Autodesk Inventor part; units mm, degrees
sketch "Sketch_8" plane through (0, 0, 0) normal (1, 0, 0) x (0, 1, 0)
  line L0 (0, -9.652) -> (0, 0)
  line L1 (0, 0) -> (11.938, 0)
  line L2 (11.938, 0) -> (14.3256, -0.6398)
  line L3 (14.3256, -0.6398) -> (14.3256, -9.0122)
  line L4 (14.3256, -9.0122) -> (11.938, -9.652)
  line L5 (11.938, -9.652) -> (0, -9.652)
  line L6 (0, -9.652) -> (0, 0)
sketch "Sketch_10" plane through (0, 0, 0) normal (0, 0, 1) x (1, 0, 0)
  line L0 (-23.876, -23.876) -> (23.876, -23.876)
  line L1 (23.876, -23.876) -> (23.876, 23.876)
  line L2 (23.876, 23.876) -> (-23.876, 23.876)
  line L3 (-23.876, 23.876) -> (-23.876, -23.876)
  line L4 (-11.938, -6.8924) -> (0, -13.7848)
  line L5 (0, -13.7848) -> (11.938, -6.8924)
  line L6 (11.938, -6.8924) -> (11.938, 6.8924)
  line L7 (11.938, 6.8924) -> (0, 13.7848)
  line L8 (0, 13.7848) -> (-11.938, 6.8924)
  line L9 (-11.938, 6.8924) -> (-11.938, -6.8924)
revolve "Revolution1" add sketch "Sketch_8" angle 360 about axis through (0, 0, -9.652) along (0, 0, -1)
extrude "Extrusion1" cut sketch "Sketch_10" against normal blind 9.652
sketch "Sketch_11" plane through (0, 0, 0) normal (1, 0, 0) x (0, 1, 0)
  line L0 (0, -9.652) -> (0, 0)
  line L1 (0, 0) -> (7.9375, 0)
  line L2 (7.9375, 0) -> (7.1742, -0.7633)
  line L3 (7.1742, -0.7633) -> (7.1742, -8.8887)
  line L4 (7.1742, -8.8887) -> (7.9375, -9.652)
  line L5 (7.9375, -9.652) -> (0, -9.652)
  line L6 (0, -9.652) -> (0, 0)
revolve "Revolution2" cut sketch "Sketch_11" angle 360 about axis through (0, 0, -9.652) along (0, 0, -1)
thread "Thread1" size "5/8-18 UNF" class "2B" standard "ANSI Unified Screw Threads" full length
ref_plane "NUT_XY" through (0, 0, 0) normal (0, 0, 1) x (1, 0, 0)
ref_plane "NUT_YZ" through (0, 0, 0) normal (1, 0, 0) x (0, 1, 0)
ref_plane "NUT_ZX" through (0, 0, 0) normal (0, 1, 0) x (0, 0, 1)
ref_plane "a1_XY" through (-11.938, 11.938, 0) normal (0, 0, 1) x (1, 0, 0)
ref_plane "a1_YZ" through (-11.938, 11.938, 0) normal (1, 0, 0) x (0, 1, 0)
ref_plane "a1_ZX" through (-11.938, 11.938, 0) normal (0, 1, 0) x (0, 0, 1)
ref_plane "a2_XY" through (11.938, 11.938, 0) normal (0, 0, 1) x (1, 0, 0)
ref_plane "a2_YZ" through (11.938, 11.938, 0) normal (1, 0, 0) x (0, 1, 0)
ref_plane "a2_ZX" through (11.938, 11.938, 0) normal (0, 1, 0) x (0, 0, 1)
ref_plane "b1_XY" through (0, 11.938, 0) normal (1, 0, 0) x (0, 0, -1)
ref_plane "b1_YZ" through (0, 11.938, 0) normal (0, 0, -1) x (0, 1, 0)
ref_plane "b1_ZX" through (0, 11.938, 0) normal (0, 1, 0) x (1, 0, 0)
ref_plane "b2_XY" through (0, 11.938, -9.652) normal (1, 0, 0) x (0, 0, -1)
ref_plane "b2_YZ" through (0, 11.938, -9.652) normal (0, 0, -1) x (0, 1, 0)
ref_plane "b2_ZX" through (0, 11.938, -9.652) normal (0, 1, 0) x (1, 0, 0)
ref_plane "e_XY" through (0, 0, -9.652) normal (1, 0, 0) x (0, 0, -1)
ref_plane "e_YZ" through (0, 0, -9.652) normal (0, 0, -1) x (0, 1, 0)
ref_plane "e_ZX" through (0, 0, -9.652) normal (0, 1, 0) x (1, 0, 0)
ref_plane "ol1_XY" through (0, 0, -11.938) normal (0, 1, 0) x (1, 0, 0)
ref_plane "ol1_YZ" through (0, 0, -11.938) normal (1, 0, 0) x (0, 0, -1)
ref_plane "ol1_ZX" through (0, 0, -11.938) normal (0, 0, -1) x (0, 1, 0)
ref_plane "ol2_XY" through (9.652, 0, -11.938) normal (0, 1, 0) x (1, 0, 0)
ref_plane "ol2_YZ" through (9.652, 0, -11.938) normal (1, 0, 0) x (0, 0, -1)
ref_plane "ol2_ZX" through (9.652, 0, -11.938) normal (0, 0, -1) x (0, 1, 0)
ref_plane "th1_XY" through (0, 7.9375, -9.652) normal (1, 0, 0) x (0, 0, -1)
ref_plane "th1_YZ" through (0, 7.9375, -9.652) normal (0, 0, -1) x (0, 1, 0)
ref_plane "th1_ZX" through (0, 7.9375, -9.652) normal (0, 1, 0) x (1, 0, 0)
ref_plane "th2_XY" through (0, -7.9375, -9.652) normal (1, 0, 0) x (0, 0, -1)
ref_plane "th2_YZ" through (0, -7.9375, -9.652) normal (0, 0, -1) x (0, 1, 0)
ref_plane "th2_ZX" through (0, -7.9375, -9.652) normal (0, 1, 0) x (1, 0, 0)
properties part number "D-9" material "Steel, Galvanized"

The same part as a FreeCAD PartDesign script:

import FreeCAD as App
import Part
import Sketcher

V = App.Vector
Q = App.Units.Quantity

doc = App.newDocument("Part")
params = doc.addObject("Spreadsheet::Sheet", "Params")
for row, (alias, value) in enumerate([
    ("sketch1_width", "0.47 in"),
    ("sketch1_height", "0.38 in"),
    ("revolution_angle", "360 deg"),
    ("sketch2_width", "1.88 in"),
    ("pocket1_length", "0.38 in"),
    ("sketch3_height", "0.38 in"),
    ("sketch3_width", "0.3125 in"),
    ("groove_angle", "360 deg"),
], start=1):
    params.set(f"A{row}", alias)
    params.set(f"B{row}", "=" + value)
    params.setAlias(f"B{row}", alias)

body = doc.addObject("PartDesign::Body", "Body")

# Sketch on YZ plane
sketch1 = body.newObject("Sketcher::SketchObject", "Sketch")
sketch1.AttachmentSupport = (doc.getObject("YZ_Plane"), [""])
sketch1.MapMode = "FlatFace"
sketch1.addGeometry([
    Part.LineSegment(V(0, 0, 0), V(0, -9.7, 0)),  # 0
    Part.LineSegment(V(0, -9.7, 0), V(11.9, -9.7, 0)),  # 1
    Part.LineSegment(V(11.9, -9.7, 0), V(14.3, -9, 0)),  # 2
    Part.LineSegment(V(14.3, -9, 0), V(14.3, -0.6, 0)),  # 3
    Part.LineSegment(V(14.3, -0.6, 0), V(11.9, 0, 0)),  # 4
    Part.LineSegment(V(11.9, 0, 0), V(0, 0, 0)),  # 5
], False)
sketch1.addConstraint([
    Sketcher.Constraint("Coincident", 0, 2, 1, 1),
    Sketcher.Constraint("Coincident", 1, 2, 2, 1),
    Sketcher.Constraint("Coincident", 2, 2, 3, 1),
    Sketcher.Constraint("Coincident", 3, 2, 4, 1),
    Sketcher.Constraint("Coincident", 4, 2, 5, 1),
    Sketcher.Constraint("Coincident", 5, 2, 0, 1),
    Sketcher.Constraint("Vertical", 0),
    Sketcher.Constraint("Horizontal", 1),
    Sketcher.Constraint("Vertical", 3),
    Sketcher.Constraint("Horizontal", 5),
    Sketcher.Constraint("Coincident", 5, 2, -1, 1),
    Sketcher.Constraint("Vertical", 1, 2, 4, 2),
    Sketcher.Constraint("Equal", 2, 4),
    Sketcher.Constraint("Angle", 2, Q("15.001 deg")),
    Sketcher.Constraint("DistanceX", 1, 1, 1, 2, Q("0.47 in")),
    Sketcher.Constraint("DistanceY", 0, 2, 0, 1, Q("0.38 in")),
    Sketcher.Constraint("DistanceX", -1, 1, 2, 2, Q("0.564 in")),
])
sketch1.setExpression("Constraints[14]", "Params.sketch1_width")
sketch1.setExpression("Constraints[15]", "Params.sketch1_height")
revolution = body.newObject("PartDesign::Revolution", "Revolution")
revolution.Profile = sketch1
revolution.ReferenceAxis = (sketch1, ["V_Axis"])
revolution.setExpression("Angle", "Params.revolution_angle")

# Sketch on XY plane
sketch2 = body.newObject("Sketcher::SketchObject", "Sketch001")
sketch2.AttachmentSupport = (doc.getObject("XY_Plane"), [""])
sketch2.MapMode = "FlatFace"
sketch2.addGeometry([
    Part.LineSegment(V(-24, 24, 0), V(-24, -24, 0)),  # 0
    Part.LineSegment(V(-24, -24, 0), V(24, -24, 0)),  # 1
    Part.LineSegment(V(24, -24, 0), V(24, 24, 0)),  # 2
    Part.LineSegment(V(24, 24, 0), V(-24, 24, 0)),  # 3
    Part.LineSegment(V(0, -14, 0), V(-12, -7, 0)),  # 4
    Part.LineSegment(V(-12, -7, 0), V(-12, 7, 0)),  # 5
    Part.LineSegment(V(-12, 7, 0), V(0, 14, 0)),  # 6
    Part.LineSegment(V(0, 14, 0), V(12, 7, 0)),  # 7
    Part.LineSegment(V(12, 7, 0), V(12, -7, 0)),  # 8
    Part.LineSegment(V(12, -7, 0), V(0, -14, 0)),  # 9
], False)
sketch2.addConstraint([
    Sketcher.Constraint("Coincident", 0, 2, 1, 1),
    Sketcher.Constraint("Coincident", 1, 2, 2, 1),
    Sketcher.Constraint("Coincident", 2, 2, 3, 1),
    Sketcher.Constraint("Coincident", 3, 2, 0, 1),
    Sketcher.Constraint("Coincident", 4, 2, 5, 1),
    Sketcher.Constraint("Coincident", 5, 2, 6, 1),
    Sketcher.Constraint("Coincident", 6, 2, 7, 1),
    Sketcher.Constraint("Coincident", 7, 2, 8, 1),
    Sketcher.Constraint("Coincident", 8, 2, 9, 1),
    Sketcher.Constraint("Coincident", 9, 2, 4, 1),
    Sketcher.Constraint("Vertical", 0),
    Sketcher.Constraint("Horizontal", 1),
    Sketcher.Constraint("Vertical", 2),
    Sketcher.Constraint("Horizontal", 3),
    Sketcher.Constraint("Vertical", 5),
    Sketcher.Constraint("Vertical", 8),
    Sketcher.Constraint("Symmetric", 0, 2, 2, 2, -1, 1),
    Sketcher.Constraint("Symmetric", 4, 2, 7, 2, -1, 1),
    Sketcher.Constraint("Symmetric", 6, 2, 9, 2, -1, 1),
    Sketcher.Constraint("PointOnObject", 6, 2, -2),
    Sketcher.Constraint("Parallel", 6, 9),
    Sketcher.Constraint("Horizontal", 5, 2, 7, 2),
    Sketcher.Constraint("Equal", 3, 0),
    Sketcher.Constraint("Angle", 4, Q("150 deg")),
    Sketcher.Constraint("DistanceX", 1, 1, 1, 2, Q("1.88 in")),
    Sketcher.Constraint("DistanceX", 4, 2, -1, 1, Q("0.47 in")),
    Sketcher.Constraint("DistanceY", 5, 1, 5, 2, Q("0.5427 in")),
])
sketch2.setExpression("Constraints[24]", "Params.sketch2_width")
pocket1 = body.newObject("PartDesign::Pocket", "Pocket")
pocket1.Profile = sketch2
pocket1.setExpression("Length", "Params.pocket1_length")

# Sketch on YZ plane
sketch3 = body.newObject("Sketcher::SketchObject", "Sketch002")
sketch3.AttachmentSupport = (doc.getObject("YZ_Plane"), [""])
sketch3.MapMode = "FlatFace"
sketch3.addGeometry([
    Part.LineSegment(V(0, 0, 0), V(0, -9.7, 0)),  # 0
    Part.LineSegment(V(0, -9.7, 0), V(7.9, -9.7, 0)),  # 1
    Part.LineSegment(V(7.9, -9.7, 0), V(7.2, -8.9, 0)),  # 2
    Part.LineSegment(V(7.2, -8.9, 0), V(7.2, -0.8, 0)),  # 3
    Part.LineSegment(V(7.2, -0.8, 0), V(7.9, 0, 0)),  # 4
    Part.LineSegment(V(7.9, 0, 0), V(0, 0, 0)),  # 5
], False)
sketch3.addConstraint([
    Sketcher.Constraint("Coincident", 0, 2, 1, 1),
    Sketcher.Constraint("Coincident", 1, 2, 2, 1),
    Sketcher.Constraint("Coincident", 2, 2, 3, 1),
    Sketcher.Constraint("Coincident", 3, 2, 4, 1),
    Sketcher.Constraint("Coincident", 4, 2, 5, 1),
    Sketcher.Constraint("Coincident", 5, 2, 0, 1),
    Sketcher.Constraint("Vertical", 0),
    Sketcher.Constraint("Horizontal", 1),
    Sketcher.Constraint("Vertical", 3),
    Sketcher.Constraint("Horizontal", 5),
    Sketcher.Constraint("Coincident", 5, 2, -1, 1),
    Sketcher.Constraint("Perpendicular", 2, 4),
    Sketcher.Constraint("Vertical", 1, 2, 4, 2),
    Sketcher.Constraint("Equal", 2, 4),
    Sketcher.Constraint("DistanceY", 0, 2, 0, 1, Q("0.38 in")),
    Sketcher.Constraint("DistanceX", 1, 1, 1, 2, Q("0.3125 in")),
    Sketcher.Constraint("DistanceY", 3, 1, 3, 2, Q("0.3199 in")),
])
sketch3.setExpression("Constraints[14]", "Params.sketch3_height")
sketch3.setExpression("Constraints[15]", "Params.sketch3_width")
groove = body.newObject("PartDesign::Groove", "Groove")
groove.Profile = sketch3
groove.ReferenceAxis = (sketch3, ["V_Axis"])
groove.setExpression("Angle", "Params.groove_angle")

doc.recompute()
